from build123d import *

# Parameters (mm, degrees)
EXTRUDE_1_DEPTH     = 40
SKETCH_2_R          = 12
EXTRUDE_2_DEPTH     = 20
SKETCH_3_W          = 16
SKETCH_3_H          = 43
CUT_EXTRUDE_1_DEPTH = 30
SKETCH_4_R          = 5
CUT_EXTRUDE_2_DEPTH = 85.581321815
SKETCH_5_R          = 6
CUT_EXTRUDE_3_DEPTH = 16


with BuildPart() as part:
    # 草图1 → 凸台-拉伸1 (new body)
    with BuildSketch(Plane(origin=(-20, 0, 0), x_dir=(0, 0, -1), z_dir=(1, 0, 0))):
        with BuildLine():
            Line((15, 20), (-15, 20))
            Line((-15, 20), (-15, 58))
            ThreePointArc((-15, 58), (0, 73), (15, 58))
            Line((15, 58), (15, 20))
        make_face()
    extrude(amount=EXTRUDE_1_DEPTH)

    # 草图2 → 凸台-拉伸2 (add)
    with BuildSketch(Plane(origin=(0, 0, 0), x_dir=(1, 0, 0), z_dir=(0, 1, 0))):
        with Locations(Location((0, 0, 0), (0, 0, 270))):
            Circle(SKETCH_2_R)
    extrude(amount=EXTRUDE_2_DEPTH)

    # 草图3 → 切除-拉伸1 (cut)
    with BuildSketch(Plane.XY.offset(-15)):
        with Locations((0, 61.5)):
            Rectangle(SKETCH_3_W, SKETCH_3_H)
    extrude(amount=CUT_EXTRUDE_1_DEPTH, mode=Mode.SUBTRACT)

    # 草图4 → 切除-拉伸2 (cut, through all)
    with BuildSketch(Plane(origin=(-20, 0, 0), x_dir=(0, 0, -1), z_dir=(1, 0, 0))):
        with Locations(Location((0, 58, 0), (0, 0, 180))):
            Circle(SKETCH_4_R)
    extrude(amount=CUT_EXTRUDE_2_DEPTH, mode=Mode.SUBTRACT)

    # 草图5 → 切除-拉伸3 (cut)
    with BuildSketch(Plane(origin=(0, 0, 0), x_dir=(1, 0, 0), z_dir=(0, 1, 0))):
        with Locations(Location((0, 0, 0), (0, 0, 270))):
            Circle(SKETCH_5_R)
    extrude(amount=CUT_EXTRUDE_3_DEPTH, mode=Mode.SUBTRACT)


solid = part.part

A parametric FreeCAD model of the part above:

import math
import FreeCAD as App
import Part
import Sketcher

V = App.Vector


def add_polygon(sketch, points):
    """Adds a closed chain of lines whose ends are joined by coincident constraints."""
    first, n = sketch.GeometryCount, len(points)
    for a, b in zip(points, points[1:] + points[:1]):
        sketch.addGeometry(Part.LineSegment(App.Vector(*a, 0), App.Vector(*b, 0)), False)
    for i in range(n):
        sketch.addConstraint(Sketcher.Constraint("Coincident", first + i, 2, first + (i + 1) % n, 1))

doc = App.newDocument("Part")
body = doc.addObject("PartDesign::Body", "Body")

sketch1 = body.newObject("Sketcher::SketchObject", "Sketch")
sketch1.AttachmentSupport = (doc.getObject("YZ_Plane"), [""])
sketch1.MapMode = "FlatFace"
sketch1.AttachmentOffset = App.Placement(V(0, 0, -20), App.Rotation())
sketch1.addGeometry([
    Part.LineSegment(V(20, 15, 0), V(20, -15, 0)),
    Part.LineSegment(V(20, -15, 0), V(58, -15, 0)),
    Part.ArcOfCircle(Part.Circle(V(58, 0, 0), V(0, 0, 1), 15), math.radians(-90), math.radians(90)),
    Part.LineSegment(V(58, 15, 0), V(20, 15, 0)),
], False)
sketch1.addConstraint([
    Sketcher.Constraint("Coincident", 0, 2, 1, 1),
    Sketcher.Constraint("Tangent", 1, 2, 2, 1),
    Sketcher.Constraint("Tangent", 2, 2, 3, 1),
    Sketcher.Constraint("Coincident", 3, 2, 0, 1),
    Sketcher.Constraint("Vertical", 0),
    Sketcher.Constraint("Horizontal", 1),
    Sketcher.Constraint("Horizontal", 3),
    Sketcher.Constraint("PointOnObject", 2, 3, -1),
    Sketcher.Constraint("Radius", 2, 15.0),
    Sketcher.Constraint("DistanceX", 1, 1, 1, 2, 38.0),
    Sketcher.Constraint("DistanceX", -1, 1, 2, 3, 58.0),
])
pad1 = body.newObject("PartDesign::Pad", "Pad")
pad1.Profile = sketch1
pad1.Length = 40

sketch2 = body.newObject("Sketcher::SketchObject", "Sketch001")
sketch2.AttachmentSupport = (doc.getObject("XZ_Plane"), [""])
sketch2.MapMode = "FlatFace"
sketch2.addGeometry(Part.Circle(V(0, 0, 0), V(0, 0, 1), 12), False)
sketch2.addConstraint([
    Sketcher.Constraint("Coincident", 0, 3, -1, 1),
    Sketcher.Constraint("Diameter", 0, 24.0),
])
pad2 = body.newObject("PartDesign::Pad", "Pad001")
pad2.Profile = sketch2
pad2.Length = 20
pad2.Reversed = True

sketch3 = body.newObject("Sketcher::SketchObject", "Sketch002")
sketch3.AttachmentSupport = (doc.getObject("XY_Plane"), [""])
sketch3.MapMode = "FlatFace"
sketch3.AttachmentOffset = App.Placement(V(0, 0, -15), App.Rotation())
add_polygon(sketch3, [(-8, 83), (-8, 40), (8, 40), (8, 83)])
sketch3.addConstraint([
    Sketcher.Constraint("Vertical", 0),
    Sketcher.Constraint("Horizontal", 1),
    Sketcher.Constraint("Vertical", 2),
    Sketcher.Constraint("Horizontal", 3),
    Sketcher.Constraint("DistanceX", 1, 1, 1, 2, 16.0),
    Sketcher.Constraint("DistanceY", 0, 2, 0, 1, 43.0),
    Sketcher.Constraint("DistanceX", 0, 2, -1, 1, 8.0),
    Sketcher.Constraint("DistanceY", -1, 1, 0, 2, 40.0),
])
pocket1 = body.newObject("PartDesign::Pocket", "Pocket")
pocket1.Profile = sketch3
pocket1.Length = 30
pocket1.Reversed = True

sketch4 = body.newObject("Sketcher::SketchObject", "Sketch003")
sketch4.AttachmentSupport = (doc.getObject("YZ_Plane"), [""])
sketch4.MapMode = "FlatFace"
sketch4.AttachmentOffset = App.Placement(V(0, 0, -20), App.Rotation())
sketch4.addGeometry(Part.Circle(V(58, 0, 0), V(0, 0, 1), 5), False)
sketch4.addConstraint([
    Sketcher.Constraint("PointOnObject", 0, 3, -1),
    Sketcher.Constraint("Diameter", 0, 10.0),
    Sketcher.Constraint("DistanceX", -1, 1, 0, 3, 58.0),
])
pocket2 = body.newObject("PartDesign::Pocket", "Pocket001")
pocket2.Profile = sketch4
pocket2.Type = "ThroughAll"
pocket2.Reversed = True

sketch5 = body.newObject("Sketcher::SketchObject", "Sketch004")
sketch5.AttachmentSupport = (doc.getObject("XZ_Plane"), [""])
sketch5.MapMode = "FlatFace"
sketch5.addGeometry(Part.Circle(V(0, 0, 0), V(0, 0, 1), 6), False)
sketch5.addConstraint([
    Sketcher.Constraint("Coincident", 0, 3, -1, 1),
    Sketcher.Constraint("Diameter", 0, 12.0),
])
pocket3 = body.newObject("PartDesign::Pocket", "Pocket002")
pocket3.Profile = sketch5
pocket3.Length = 16

doc.recompute()
